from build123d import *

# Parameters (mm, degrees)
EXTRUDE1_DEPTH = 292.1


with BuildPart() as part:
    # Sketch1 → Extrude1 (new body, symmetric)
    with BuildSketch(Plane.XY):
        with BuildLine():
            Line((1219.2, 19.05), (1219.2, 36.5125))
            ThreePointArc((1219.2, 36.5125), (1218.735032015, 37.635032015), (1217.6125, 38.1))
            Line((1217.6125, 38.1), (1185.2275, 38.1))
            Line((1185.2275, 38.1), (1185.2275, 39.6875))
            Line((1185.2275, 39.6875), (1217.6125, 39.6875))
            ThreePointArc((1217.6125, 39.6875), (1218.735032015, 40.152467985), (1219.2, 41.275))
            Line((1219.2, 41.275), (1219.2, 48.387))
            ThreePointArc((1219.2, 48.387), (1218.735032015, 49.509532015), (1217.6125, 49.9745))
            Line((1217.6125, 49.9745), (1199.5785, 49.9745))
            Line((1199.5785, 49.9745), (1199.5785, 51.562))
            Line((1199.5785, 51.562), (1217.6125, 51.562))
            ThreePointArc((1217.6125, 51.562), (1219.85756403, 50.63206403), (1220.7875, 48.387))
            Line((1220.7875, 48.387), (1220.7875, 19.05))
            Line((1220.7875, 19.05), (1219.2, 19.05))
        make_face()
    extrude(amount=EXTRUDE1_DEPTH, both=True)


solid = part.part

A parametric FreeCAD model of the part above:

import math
import FreeCAD as App
import Part
import Sketcher
from FreeCAD import Vector
Q = App.Units.Quantity

doc = App.newDocument("Part")
body = doc.addObject("PartDesign::Body", "Body")

# Sketch on XY plane
sketch1 = doc.addObject("Sketcher::SketchObject", "Sketch")
body.addObject(sketch1)
sketch1.AttachmentSupport = (doc.XY_Plane, [""])
sketch1.MapMode = "FlatFace"
sketch1.addGeometry([
    Part.LineSegment(Vector(1219.2, 36.5, 0), Vector(1219.2, 19.1, 0)),  # 0
    Part.LineSegment(Vector(1219.2, 19.1, 0), Vector(1220.8, 19.1, 0)),  # 1
    Part.LineSegment(Vector(1220.8, 19.1, 0), Vector(1220.8, 48.4, 0)),  # 2
    Part.ArcOfCircle(Part.Circle(Vector(1217.6, 48.4, 0), Vector(0, 0, 1), 3.2), math.radians(0), math.radians(90)),  # 3
    Part.LineSegment(Vector(1217.6, 51.6, 0), Vector(1199.6, 51.6, 0)),  # 4
    Part.LineSegment(Vector(1199.6, 51.6, 0), Vector(1199.6, 50, 0)),  # 5
    Part.LineSegment(Vector(1199.6, 50, 0), Vector(1217.6, 50, 0)),  # 6
    Part.ArcOfCircle(Part.Circle(Vector(1217.6, 48.4, 0), Vector(0, 0, 1), 1.6), math.radians(0), math.radians(90)),  # 7
    Part.LineSegment(Vector(1219.2, 48.4, 0), Vector(1219.2, 41.3, 0)),  # 8
    Part.ArcOfCircle(Part.Circle(Vector(1217.6, 41.3, 0), Vector(0, 0, 1), 1.6), math.radians(-90), math.radians(0)),  # 9
    Part.LineSegment(Vector(1217.6, 39.7, 0), Vector(1185.2, 39.7, 0)),  # 10
    Part.LineSegment(Vector(1185.2, 39.7, 0), Vector(1185.2, 38.1, 0)),  # 11
    Part.LineSegment(Vector(1185.2, 38.1, 0), Vector(1217.6, 38.1, 0)),  # 12
    Part.ArcOfCircle(Part.Circle(Vector(1217.6, 36.5, 0), Vector(0, 0, 1), 1.6), math.radians(0), math.radians(90)),  # 13
], False)
sketch1.addConstraint([
    Sketcher.Constraint("Coincident", 0, 2, 1, 1),
    Sketcher.Constraint("Coincident", 1, 2, 2, 1),
    Sketcher.Constraint("Tangent", 2, 2, 3, 1),
    Sketcher.Constraint("Tangent", 3, 2, 4, 1),
    Sketcher.Constraint("Coincident", 4, 2, 5, 1),
    Sketcher.Constraint("Coincident", 5, 2, 6, 1),
    Sketcher.Constraint("Tangent", 6, 2, 7, 2),
    Sketcher.Constraint("Tangent", 7, 1, 8, 1),
    Sketcher.Constraint("Tangent", 8, 2, 9, 2),
    Sketcher.Constraint("Tangent", 9, 1, 10, 1),
    Sketcher.Constraint("Coincident", 10, 2, 11, 1),
    Sketcher.Constraint("Coincident", 11, 2, 12, 1),
    Sketcher.Constraint("Tangent", 12, 2, 13, 2),
    Sketcher.Constraint("Tangent", 13, 1, 0, 1),
    Sketcher.Constraint("Vertical", 0),
    Sketcher.Constraint("Horizontal", 1),
    Sketcher.Constraint("Vertical", 2),
    Sketcher.Constraint("Horizontal", 4),
    Sketcher.Constraint("Vertical", 5),
    Sketcher.Constraint("Horizontal", 6),
    Sketcher.Constraint("Vertical", 8),
    Sketcher.Constraint("Horizontal", 10),
    Sketcher.Constraint("Vertical", 11),
    Sketcher.Constraint("Horizontal", 12),
    Sketcher.Constraint("Coincident", 7, 3, 3, 3),
    Sketcher.Constraint("Equal", 7, 9),
    Sketcher.Constraint("Equal", 9, 13),
    Sketcher.Constraint("Vertical", 9, 3, 13, 3),
    Sketcher.Constraint("Equal", 5, 11),
    Sketcher.Constraint("DistanceX", -1, 1, 0, 2, Q("48 in")),
    Sketcher.Constraint("Radius", 3, Q("0.125 in")),
    Sketcher.Constraint("Radius", 7, Q("0.0625 in")),
    Sketcher.Constraint("DistanceX", 4, 2, 4, 1, Q("0.71 in")),
    Sketcher.Constraint("DistanceY", 8, 2, 8, 1, Q("0.28 in")),
    Sketcher.Constraint("DistanceY", -1, 1, 11, 2, Q("1.5 in")),
    Sketcher.Constraint("DistanceX", 10, 2, 10, 1, Q("1.275 in")),
    Sketcher.Constraint("DistanceY", 0, 2, 0, 1, Q("0.6875 in")),
])
pad1 = doc.addObject("PartDesign::Pad", "Pad")
body.addObject(pad1)
pad1.Profile = sketch1
pad1.Length = Q("23 in")
pad1.Midplane = True

doc.recompute()
